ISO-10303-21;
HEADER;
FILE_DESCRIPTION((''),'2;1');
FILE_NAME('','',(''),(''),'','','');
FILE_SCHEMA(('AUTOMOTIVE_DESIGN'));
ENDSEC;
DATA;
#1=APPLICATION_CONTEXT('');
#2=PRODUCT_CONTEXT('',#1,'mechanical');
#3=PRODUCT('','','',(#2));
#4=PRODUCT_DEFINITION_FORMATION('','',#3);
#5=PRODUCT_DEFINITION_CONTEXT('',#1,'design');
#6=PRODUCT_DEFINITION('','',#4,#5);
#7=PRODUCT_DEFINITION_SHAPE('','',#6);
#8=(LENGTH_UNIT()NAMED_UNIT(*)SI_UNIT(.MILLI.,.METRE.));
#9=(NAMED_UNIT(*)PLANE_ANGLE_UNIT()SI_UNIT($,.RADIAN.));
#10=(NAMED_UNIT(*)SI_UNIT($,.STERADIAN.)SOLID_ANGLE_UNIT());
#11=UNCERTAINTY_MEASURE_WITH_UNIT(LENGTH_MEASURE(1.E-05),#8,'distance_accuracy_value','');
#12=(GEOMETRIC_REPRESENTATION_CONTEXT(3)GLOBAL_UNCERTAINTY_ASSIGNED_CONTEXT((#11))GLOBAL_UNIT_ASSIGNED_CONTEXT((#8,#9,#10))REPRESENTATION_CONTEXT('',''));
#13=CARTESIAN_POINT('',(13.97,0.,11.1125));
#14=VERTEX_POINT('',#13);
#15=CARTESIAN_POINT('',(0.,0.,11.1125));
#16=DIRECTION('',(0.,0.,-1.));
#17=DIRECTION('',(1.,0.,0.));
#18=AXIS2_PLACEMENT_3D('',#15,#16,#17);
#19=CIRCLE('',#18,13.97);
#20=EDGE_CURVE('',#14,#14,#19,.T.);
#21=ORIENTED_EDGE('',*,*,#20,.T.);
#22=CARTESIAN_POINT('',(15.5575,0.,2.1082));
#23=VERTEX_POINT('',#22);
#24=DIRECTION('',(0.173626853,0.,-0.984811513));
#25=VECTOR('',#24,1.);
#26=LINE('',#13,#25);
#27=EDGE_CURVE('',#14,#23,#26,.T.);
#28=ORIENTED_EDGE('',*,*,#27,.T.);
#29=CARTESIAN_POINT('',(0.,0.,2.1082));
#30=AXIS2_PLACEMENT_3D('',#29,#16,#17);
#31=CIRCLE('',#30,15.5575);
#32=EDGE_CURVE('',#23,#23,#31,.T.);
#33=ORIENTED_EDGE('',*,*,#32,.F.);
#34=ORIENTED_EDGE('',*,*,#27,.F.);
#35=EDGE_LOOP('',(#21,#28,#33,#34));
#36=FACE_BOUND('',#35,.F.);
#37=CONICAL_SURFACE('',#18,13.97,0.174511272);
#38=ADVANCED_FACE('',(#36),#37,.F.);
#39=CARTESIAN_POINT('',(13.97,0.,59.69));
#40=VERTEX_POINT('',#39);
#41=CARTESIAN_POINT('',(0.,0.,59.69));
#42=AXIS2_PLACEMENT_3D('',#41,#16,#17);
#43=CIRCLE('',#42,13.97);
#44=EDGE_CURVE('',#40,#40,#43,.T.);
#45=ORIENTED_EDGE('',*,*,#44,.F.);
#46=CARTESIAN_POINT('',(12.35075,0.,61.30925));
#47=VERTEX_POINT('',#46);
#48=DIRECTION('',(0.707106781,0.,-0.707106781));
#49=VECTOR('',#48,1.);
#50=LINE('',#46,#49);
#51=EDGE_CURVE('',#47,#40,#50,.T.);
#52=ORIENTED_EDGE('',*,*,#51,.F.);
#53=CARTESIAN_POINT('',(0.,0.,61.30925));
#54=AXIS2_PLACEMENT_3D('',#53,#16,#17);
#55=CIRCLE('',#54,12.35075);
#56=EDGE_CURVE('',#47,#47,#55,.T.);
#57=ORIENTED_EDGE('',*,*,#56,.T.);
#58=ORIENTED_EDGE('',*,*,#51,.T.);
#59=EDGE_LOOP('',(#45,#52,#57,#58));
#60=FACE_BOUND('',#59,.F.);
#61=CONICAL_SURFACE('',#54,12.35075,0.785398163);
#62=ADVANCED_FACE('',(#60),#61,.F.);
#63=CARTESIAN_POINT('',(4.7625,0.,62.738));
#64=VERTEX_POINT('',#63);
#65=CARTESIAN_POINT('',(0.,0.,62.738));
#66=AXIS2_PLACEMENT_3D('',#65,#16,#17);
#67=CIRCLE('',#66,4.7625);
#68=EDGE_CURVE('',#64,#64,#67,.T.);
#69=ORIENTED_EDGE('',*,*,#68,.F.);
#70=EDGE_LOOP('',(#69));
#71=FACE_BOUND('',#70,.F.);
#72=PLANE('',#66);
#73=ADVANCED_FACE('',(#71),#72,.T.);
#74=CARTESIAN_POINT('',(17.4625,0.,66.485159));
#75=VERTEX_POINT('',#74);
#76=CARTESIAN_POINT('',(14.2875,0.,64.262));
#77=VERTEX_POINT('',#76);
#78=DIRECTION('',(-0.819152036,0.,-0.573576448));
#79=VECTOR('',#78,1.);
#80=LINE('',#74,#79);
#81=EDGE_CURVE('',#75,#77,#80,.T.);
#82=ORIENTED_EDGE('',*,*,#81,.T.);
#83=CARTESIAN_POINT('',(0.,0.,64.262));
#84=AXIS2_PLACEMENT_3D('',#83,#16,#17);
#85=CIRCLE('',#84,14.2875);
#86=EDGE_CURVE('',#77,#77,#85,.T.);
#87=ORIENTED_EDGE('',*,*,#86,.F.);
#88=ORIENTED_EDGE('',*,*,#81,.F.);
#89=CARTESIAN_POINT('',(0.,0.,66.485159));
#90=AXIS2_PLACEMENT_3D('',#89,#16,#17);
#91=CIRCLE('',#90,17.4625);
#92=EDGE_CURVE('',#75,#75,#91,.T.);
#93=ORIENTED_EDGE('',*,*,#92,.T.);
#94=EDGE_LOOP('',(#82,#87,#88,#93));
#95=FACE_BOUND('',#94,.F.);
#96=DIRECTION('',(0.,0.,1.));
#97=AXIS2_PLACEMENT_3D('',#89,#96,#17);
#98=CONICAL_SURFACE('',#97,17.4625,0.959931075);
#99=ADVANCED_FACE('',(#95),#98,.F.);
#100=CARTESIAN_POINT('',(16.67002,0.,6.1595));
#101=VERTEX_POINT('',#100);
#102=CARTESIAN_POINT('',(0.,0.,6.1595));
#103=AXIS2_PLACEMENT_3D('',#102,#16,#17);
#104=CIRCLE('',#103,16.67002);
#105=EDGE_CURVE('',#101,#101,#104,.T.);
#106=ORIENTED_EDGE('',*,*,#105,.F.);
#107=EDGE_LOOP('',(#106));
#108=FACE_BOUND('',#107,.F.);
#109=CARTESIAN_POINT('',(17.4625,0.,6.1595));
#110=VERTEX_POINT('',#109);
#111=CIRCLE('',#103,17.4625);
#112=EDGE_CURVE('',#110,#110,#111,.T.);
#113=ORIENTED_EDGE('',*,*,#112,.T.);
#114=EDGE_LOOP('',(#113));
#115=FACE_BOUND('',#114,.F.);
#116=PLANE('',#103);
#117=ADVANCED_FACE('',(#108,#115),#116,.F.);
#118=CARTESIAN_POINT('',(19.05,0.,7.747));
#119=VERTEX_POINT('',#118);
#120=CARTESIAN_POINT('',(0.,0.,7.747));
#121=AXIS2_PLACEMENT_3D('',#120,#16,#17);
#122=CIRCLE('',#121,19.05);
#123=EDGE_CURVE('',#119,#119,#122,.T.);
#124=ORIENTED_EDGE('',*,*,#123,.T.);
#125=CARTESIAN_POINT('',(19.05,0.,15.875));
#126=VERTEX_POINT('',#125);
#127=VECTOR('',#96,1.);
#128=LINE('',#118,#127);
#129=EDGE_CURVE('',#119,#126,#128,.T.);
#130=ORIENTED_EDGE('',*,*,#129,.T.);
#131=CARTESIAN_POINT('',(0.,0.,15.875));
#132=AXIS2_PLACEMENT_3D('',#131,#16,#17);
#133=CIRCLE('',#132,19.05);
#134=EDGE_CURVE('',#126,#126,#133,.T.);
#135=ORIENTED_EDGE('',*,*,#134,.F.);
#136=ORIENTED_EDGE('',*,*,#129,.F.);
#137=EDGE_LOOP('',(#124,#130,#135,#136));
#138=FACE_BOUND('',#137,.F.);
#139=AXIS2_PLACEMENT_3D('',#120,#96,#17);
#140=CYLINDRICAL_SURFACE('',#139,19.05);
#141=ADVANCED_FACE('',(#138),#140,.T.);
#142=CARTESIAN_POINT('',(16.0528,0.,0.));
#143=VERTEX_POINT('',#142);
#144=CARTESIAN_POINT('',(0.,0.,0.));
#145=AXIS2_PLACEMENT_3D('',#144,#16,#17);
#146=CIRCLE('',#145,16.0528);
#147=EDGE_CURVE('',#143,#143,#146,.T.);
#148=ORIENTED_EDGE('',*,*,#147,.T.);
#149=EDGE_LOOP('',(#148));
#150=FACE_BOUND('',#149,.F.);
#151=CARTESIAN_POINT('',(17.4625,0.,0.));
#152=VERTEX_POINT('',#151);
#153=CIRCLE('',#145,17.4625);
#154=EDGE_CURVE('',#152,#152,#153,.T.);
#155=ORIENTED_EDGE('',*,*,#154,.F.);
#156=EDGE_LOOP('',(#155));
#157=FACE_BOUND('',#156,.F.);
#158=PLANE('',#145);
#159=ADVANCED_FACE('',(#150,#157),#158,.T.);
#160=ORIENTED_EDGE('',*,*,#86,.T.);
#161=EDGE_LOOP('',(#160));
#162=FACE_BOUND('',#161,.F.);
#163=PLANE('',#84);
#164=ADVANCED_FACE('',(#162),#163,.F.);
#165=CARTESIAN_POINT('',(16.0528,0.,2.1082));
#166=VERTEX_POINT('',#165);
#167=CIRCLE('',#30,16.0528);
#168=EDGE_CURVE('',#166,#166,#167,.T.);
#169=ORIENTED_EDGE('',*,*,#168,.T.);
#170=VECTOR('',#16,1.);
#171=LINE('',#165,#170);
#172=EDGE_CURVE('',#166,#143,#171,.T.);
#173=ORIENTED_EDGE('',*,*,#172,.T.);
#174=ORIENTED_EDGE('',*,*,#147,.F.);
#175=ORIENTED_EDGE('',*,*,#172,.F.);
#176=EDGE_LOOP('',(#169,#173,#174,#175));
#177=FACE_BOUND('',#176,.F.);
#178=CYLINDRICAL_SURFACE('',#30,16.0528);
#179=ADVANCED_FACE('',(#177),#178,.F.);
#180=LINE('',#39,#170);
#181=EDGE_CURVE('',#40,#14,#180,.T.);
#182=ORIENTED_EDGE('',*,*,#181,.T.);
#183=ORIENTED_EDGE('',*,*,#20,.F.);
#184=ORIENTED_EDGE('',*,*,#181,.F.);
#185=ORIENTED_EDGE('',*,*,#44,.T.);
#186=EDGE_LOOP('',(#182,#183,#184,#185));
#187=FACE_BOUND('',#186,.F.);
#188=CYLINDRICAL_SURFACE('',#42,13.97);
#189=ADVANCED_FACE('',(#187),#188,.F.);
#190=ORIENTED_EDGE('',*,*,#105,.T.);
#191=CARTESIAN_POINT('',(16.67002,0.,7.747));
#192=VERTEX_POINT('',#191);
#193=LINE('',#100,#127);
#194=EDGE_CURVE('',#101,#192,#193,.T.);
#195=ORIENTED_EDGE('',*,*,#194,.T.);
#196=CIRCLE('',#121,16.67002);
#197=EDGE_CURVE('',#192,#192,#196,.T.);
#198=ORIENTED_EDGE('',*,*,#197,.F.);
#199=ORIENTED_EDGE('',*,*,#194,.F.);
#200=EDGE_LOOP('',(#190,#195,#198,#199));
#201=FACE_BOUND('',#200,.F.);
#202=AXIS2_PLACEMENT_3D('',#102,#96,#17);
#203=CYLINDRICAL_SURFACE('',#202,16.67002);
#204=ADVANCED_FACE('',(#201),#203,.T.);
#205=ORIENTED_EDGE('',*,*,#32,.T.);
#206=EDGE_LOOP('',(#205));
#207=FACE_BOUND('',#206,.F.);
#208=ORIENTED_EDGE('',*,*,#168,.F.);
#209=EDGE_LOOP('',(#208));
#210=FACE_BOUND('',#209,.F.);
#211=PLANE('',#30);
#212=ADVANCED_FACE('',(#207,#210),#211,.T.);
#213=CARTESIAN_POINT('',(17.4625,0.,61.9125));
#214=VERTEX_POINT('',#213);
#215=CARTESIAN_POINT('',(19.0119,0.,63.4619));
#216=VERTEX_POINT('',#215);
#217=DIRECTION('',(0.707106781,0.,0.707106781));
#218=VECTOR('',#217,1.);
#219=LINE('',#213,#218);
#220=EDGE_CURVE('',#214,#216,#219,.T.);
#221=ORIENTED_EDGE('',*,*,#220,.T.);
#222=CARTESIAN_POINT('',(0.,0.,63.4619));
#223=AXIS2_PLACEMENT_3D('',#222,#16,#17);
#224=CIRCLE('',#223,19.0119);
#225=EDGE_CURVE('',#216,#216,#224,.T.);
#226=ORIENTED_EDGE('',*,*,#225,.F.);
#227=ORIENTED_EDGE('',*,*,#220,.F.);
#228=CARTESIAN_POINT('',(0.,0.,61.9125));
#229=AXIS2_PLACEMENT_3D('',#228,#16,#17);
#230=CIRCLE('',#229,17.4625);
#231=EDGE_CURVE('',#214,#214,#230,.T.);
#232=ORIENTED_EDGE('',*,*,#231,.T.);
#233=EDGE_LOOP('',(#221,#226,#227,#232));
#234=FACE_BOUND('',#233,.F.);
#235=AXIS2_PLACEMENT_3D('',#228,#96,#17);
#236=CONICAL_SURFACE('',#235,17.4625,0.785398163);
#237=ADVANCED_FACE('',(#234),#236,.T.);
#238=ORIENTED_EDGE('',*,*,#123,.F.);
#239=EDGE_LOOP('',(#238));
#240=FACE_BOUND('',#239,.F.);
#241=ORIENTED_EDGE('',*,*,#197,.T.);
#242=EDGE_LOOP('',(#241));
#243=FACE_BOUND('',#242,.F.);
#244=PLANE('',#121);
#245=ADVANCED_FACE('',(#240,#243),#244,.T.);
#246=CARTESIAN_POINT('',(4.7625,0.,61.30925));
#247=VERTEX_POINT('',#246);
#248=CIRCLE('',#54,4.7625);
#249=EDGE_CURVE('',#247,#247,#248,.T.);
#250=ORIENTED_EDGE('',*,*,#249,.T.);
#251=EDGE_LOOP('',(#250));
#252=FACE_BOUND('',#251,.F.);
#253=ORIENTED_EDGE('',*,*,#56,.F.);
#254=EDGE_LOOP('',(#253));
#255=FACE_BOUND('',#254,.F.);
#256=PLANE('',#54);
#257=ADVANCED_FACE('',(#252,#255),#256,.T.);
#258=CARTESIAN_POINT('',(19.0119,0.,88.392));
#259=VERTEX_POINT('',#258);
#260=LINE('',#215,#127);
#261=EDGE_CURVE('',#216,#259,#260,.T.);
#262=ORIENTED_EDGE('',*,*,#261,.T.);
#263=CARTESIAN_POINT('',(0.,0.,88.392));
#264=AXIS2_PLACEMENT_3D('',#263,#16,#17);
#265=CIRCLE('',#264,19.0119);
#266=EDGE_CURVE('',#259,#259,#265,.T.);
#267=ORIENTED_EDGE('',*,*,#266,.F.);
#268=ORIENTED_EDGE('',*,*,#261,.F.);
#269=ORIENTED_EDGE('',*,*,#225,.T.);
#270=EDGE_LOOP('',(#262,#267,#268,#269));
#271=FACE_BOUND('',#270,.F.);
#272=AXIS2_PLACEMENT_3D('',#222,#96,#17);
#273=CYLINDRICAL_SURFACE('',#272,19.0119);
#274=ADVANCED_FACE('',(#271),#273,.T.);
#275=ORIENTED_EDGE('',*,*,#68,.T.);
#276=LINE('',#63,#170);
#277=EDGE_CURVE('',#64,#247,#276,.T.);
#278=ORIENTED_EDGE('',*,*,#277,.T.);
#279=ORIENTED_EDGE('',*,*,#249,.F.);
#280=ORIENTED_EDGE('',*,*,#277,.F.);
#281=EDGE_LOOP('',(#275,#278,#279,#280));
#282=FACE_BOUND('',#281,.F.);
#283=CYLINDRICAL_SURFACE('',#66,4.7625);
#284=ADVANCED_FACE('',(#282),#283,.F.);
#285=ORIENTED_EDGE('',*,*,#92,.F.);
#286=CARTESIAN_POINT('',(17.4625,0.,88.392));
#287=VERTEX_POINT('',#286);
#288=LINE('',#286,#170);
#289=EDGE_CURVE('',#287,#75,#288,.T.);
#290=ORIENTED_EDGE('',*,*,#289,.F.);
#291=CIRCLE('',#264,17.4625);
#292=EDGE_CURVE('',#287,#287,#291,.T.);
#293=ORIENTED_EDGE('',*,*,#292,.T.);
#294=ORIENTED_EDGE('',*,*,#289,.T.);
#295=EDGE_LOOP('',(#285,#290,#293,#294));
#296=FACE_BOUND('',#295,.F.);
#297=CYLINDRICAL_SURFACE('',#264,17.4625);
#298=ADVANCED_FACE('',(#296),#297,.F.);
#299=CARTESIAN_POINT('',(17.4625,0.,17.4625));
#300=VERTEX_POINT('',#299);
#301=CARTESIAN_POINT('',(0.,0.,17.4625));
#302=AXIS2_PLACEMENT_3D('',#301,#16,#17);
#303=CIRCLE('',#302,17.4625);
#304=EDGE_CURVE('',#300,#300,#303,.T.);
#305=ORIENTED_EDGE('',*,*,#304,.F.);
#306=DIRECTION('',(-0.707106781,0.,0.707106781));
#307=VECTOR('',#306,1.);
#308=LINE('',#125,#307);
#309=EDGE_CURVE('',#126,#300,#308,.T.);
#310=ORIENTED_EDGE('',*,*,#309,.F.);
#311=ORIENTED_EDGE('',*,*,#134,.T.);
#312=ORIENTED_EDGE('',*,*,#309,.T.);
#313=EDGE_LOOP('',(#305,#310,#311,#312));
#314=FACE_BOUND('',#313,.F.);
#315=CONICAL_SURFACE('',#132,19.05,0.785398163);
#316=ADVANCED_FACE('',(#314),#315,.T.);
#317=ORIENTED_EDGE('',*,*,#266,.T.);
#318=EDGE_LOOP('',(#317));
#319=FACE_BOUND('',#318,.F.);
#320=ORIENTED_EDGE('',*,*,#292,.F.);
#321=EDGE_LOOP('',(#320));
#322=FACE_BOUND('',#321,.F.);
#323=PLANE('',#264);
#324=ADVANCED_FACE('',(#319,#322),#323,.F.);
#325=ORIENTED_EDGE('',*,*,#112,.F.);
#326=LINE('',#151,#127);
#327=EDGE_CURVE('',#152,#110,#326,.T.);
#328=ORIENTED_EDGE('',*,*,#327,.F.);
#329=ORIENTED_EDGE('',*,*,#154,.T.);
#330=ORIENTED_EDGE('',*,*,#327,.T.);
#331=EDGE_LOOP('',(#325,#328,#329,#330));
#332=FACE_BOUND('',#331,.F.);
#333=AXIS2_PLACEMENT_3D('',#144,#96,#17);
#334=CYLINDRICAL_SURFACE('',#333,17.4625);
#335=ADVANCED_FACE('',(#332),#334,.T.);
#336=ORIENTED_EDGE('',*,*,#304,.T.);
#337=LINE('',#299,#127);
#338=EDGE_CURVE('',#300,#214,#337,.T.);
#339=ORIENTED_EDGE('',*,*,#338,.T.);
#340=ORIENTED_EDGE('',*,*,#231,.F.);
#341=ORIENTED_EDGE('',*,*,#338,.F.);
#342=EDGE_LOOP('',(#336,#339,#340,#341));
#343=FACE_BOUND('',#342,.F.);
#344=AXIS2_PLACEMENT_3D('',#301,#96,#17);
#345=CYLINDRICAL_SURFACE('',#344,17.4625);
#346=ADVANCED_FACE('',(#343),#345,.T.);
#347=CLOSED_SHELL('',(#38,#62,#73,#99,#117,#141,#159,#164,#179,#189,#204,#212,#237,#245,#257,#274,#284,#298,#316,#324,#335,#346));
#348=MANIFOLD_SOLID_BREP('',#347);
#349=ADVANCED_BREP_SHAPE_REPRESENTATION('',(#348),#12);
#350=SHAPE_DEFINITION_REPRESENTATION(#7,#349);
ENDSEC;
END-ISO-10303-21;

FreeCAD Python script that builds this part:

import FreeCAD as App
import Part
import Sketcher

V = App.Vector
Q = App.Units.Quantity


def add_polygon(sketch, points):
    """Adds a closed chain of lines whose ends are joined by coincident constraints."""
    first, n = sketch.GeometryCount, len(points)
    for a, b in zip(points, points[1:] + points[:1]):
        sketch.addGeometry(Part.LineSegment(App.Vector(*a, 0), App.Vector(*b, 0)), False)
    for i in range(n):
        sketch.addConstraint(Sketcher.Constraint("Coincident", first + i, 2, first + (i + 1) % n, 1))

doc = App.newDocument("Part")
body = doc.addObject("PartDesign::Body", "Body")

# Sketch on XZ plane
sketch1 = body.newObject("Sketcher::SketchObject", "Sketch")
sketch1.AttachmentSupport = (doc.getObject("XZ_Plane"), [""])
sketch1.MapMode = "FlatFace"
add_polygon(sketch1, [(16.05, 2.11), (16.05, 0), (17.46, 0), (17.46, 6.16), (16.67, 6.16), (16.67, 7.75), (19.05, 7.75), (19.05, 15.88), (17.46, 17.46), (17.46, 61.91), (19.01, 63.46), (19.01, 88.39), (17.46, 88.39), (17.46, 66.49), (14.29, 64.26), (0, 64.26), (0, 62.74), (4.76, 62.74), (4.76, 61.31), (12.35, 61.31), (13.97, 59.69), (13.97, 11.11), (15.56, 2.11)])  # lines 0-22
sketch1.addConstraint([
    Sketcher.Constraint("Vertical", 0),
    Sketcher.Constraint("Horizontal", 1),
    Sketcher.Constraint("Vertical", 2),
    Sketcher.Constraint("Horizontal", 3),
    Sketcher.Constraint("Vertical", 4),
    Sketcher.Constraint("Horizontal", 5),
    Sketcher.Constraint("Vertical", 6),
    Sketcher.Constraint("Vertical", 8),
    Sketcher.Constraint("Vertical", 10),
    Sketcher.Constraint("Horizontal", 11),
    Sketcher.Constraint("Vertical", 12),
    Sketcher.Constraint("Horizontal", 14),
    Sketcher.Constraint("Vertical", 15),
    Sketcher.Constraint("Horizontal", 16),
    Sketcher.Constraint("Vertical", 17),
    Sketcher.Constraint("Horizontal", 18),
    Sketcher.Constraint("Vertical", 20),
    Sketcher.Constraint("Horizontal", 22),
    Sketcher.Constraint("PointOnObject", 0, 2, -1),
    Sketcher.Constraint("PointOnObject", 14, 2, -2),
    Sketcher.Constraint("Perpendicular", 7, 9),
    Sketcher.Constraint("Perpendicular", 9, 19),
    Sketcher.Constraint("Vertical", 2, 2, 7, 2),
    Sketcher.Constraint("Vertical", 8, 2, 11, 2),
    Sketcher.Constraint("Angle", 7, Q("135 deg")),
    Sketcher.Constraint("Angle", 13, Q("-144.999999 deg")),
    Sketcher.Constraint("DistanceY", 6, 1, 6, 2, Q("0.32 in")),
    Sketcher.Constraint("DistanceY", 8, 1, 8, 2, Q("1.75 in")),
    Sketcher.Constraint("DistanceY", 15, 2, 15, 1, Q("0.06 in")),
    Sketcher.Constraint("DistanceX", 16, 2, 8, 2, Q("0.5 in")),
    Sketcher.Constraint("DistanceX", 20, 2, 5, 2, Q("0.2 in")),
    Sketcher.Constraint("DistanceX", 11, 2, 11, 1, Q("0.061 in")),
    Sketcher.Constraint("DistanceX", 14, 2, 14, 1, Q("0.5625 in")),
    Sketcher.Constraint("DistanceX", 16, 1, 16, 2, Q("0.1875 in")),
    Sketcher.Constraint("DistanceY", 0, 2, 0, 1, Q("0.083 in")),
    Sketcher.Constraint("DistanceY", 4, 1, 4, 2, Q("0.0625 in")),
    Sketcher.Constraint("DistanceX", -1, 1, 5, 2, Q("0.75 in")),
    Sketcher.Constraint("DistanceY", -1, 1, 10, 2, Q("3.48 in")),
    Sketcher.Constraint("DistanceY", -1, 1, 13, 2, Q("2.53 in")),
    Sketcher.Constraint("DistanceY", -1, 1, 19, 2, Q("2.35 in")),
    Sketcher.Constraint("DistanceX", 1, 1, 1, 2, Q("0.0555 in")),
    Sketcher.Constraint("DistanceX", 3, 2, 3, 1, Q("0.0312 in")),
    Sketcher.Constraint("DistanceX", 22, 1, 22, 2, Q("0.0195 in")),
    Sketcher.Constraint("DistanceY", 2, 1, 2, 2, Q("0.2425 in")),
    Sketcher.Constraint("DistanceY", 20, 2, 20, 1, Q("1.9125 in")),
    Sketcher.Constraint("DistanceX", 18, 1, 18, 2, 7.58825),
])
revolution = body.newObject("PartDesign::Revolution", "Revolution")
revolution.Profile = sketch1
revolution.ReferenceAxis = (sketch1, ["V_Axis"])
revolution.Angle = 360

doc.recompute()
